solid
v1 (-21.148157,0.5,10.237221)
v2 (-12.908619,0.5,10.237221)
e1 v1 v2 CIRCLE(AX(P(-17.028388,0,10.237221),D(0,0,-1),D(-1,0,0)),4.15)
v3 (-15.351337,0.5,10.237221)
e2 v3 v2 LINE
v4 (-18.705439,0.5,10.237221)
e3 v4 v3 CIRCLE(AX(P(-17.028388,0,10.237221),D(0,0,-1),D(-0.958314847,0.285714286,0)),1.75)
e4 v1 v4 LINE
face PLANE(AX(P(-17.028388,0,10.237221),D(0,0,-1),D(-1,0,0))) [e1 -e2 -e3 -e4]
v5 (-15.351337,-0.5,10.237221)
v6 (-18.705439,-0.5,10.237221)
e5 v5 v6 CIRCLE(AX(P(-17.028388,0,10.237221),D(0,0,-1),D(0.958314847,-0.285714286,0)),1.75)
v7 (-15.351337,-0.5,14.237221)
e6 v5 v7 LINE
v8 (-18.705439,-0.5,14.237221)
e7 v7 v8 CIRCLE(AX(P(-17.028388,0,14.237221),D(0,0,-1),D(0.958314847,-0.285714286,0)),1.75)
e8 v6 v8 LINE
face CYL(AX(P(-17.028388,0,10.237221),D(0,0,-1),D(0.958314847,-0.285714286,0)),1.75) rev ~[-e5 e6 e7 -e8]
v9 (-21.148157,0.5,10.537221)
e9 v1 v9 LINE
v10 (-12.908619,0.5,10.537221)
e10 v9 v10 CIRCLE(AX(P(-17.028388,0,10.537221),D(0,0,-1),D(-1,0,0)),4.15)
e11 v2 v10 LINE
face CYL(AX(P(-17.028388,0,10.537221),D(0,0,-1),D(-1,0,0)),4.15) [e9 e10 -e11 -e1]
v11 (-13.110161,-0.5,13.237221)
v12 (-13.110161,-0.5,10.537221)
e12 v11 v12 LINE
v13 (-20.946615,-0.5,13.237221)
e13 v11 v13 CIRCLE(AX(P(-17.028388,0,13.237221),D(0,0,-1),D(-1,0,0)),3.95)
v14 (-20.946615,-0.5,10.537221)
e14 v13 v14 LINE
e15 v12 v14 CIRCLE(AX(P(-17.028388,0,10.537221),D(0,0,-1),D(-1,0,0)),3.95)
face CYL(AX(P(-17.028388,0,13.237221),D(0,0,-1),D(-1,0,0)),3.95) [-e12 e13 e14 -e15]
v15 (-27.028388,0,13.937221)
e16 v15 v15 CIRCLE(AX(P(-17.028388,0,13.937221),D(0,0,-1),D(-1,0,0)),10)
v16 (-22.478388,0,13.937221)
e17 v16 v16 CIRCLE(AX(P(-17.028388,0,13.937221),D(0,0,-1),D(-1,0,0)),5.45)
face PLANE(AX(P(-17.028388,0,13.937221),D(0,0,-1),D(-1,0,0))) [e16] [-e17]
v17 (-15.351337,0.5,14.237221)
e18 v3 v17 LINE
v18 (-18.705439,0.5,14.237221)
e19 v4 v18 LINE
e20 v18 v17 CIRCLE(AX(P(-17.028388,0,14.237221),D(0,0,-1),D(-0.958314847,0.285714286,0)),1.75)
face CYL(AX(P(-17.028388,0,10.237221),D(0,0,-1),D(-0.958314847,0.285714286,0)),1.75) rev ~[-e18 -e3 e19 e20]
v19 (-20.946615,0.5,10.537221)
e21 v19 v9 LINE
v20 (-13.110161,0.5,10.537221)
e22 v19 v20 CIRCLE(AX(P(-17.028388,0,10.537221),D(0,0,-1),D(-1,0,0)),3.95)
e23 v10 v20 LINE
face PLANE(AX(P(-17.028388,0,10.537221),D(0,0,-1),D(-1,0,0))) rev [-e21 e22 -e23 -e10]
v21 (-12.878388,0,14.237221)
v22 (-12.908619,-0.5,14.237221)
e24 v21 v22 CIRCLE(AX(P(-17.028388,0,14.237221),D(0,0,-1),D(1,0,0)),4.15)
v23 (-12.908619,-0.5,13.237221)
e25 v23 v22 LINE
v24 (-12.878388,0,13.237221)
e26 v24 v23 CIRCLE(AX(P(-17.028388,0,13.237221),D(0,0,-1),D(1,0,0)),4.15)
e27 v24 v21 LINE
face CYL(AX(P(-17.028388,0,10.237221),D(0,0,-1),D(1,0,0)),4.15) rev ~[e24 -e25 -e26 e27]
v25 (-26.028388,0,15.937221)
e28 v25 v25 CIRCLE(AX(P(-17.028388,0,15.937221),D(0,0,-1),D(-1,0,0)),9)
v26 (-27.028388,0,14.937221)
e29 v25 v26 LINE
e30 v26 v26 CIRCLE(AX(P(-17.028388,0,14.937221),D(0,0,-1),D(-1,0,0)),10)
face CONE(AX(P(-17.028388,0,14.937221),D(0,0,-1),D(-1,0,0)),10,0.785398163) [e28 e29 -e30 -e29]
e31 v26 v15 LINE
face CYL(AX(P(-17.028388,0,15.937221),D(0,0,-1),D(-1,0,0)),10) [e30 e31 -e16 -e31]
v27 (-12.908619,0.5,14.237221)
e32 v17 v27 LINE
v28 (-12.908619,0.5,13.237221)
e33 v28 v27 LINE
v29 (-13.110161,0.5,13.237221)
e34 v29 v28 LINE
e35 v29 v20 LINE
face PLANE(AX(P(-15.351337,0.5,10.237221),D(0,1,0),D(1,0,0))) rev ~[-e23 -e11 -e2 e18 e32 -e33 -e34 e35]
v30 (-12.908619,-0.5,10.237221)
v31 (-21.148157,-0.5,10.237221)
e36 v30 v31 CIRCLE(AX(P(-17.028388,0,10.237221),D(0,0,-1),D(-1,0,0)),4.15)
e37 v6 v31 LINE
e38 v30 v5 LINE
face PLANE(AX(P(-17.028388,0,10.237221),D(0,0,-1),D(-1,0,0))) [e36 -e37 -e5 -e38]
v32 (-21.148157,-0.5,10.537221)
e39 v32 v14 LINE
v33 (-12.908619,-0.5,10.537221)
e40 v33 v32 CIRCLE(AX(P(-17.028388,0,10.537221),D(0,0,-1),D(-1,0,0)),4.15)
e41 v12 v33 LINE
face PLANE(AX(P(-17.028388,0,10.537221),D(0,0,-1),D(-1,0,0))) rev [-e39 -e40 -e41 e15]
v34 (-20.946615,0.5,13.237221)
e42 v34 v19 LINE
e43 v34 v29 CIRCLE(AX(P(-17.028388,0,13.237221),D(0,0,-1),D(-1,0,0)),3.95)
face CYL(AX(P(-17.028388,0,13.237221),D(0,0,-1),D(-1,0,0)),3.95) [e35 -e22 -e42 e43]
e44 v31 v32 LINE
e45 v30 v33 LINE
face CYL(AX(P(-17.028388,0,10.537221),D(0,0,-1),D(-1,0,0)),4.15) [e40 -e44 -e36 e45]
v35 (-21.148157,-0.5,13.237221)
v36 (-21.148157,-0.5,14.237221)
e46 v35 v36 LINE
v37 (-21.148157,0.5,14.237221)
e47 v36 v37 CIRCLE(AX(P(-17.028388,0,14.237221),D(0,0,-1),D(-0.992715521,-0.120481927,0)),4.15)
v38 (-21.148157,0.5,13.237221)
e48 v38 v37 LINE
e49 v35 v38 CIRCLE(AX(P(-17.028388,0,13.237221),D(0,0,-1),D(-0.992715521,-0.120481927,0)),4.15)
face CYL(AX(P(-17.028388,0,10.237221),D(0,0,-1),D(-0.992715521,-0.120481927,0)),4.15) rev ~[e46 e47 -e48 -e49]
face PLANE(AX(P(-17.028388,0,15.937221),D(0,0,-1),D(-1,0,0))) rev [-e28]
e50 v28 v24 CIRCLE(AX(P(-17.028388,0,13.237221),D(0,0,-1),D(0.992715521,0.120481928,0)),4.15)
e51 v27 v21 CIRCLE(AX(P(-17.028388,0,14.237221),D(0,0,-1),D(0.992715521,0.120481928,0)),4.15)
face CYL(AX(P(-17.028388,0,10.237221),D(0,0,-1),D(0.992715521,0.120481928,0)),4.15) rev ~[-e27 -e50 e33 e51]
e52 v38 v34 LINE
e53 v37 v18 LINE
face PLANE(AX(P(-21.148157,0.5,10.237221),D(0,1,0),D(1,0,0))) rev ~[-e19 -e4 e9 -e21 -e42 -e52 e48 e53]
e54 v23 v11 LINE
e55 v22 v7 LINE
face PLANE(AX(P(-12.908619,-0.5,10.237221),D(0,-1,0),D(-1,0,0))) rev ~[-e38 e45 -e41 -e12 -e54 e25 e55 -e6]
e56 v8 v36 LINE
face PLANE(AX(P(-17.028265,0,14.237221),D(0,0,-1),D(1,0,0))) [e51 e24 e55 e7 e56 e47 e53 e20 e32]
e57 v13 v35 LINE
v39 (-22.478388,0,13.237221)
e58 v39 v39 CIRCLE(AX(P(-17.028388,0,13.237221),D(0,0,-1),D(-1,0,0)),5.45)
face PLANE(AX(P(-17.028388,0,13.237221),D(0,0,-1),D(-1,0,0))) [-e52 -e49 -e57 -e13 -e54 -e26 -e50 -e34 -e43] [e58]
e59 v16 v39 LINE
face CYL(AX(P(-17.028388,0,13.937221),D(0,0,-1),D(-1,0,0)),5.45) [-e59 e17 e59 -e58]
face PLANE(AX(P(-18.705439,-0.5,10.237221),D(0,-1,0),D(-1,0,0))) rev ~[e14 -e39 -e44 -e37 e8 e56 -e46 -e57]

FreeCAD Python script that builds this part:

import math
import FreeCAD as App
import Part
import Sketcher
from FreeCAD import Vector
Q = App.Units.Quantity


def edges_at(feature, points):
    """Names of the edges that pass closest to the given points."""
    edges = feature.Shape.Edges
    near = lambda p: min(range(len(edges)), key=lambda i: edges[i].distToShape(Part.Vertex(*p))[0])
    return sorted({f"Edge{near(p) + 1}" for p in points})

doc = App.newDocument("Part")
body = doc.addObject("PartDesign::Body", "Body")

sketch1 = body.newObject("Sketcher::SketchObject", "Sketch")
sketch1.AttachmentSupport = (doc.getObject("XZ_Plane"), [""])
sketch1.MapMode = "FlatFace"
sketch1.addGeometry(Part.LineSegment(Vector(-17.028388, 10.237221, 0), Vector(-17.028388, 15.937221, 0)), False)
sketch1.addGeometry(Part.LineSegment(Vector(-17.028388, 15.937221, 0), Vector(-27.028388, 15.937221, 0)), False)
sketch1.addGeometry(Part.LineSegment(Vector(-27.028388, 15.937221, 0), Vector(-27.028388, 13.937221, 0)), False)
sketch1.addGeometry(Part.LineSegment(Vector(-27.028388, 13.937221, 0), Vector(-22.478388, 13.937221, 0)), False)
sketch1.addGeometry(Part.LineSegment(Vector(-22.478388, 13.937221, 0), Vector(-22.478388, 13.237221, 0)), False)
sketch1.addGeometry(Part.LineSegment(Vector(-22.478388, 13.237221, 0), Vector(-20.978388, 13.237221, 0)), False)
sketch1.addGeometry(Part.LineSegment(Vector(-20.978388, 13.237221, 0), Vector(-20.978388, 10.537221, 0)), False)
sketch1.addGeometry(Part.LineSegment(Vector(-20.978388, 10.537221, 0), Vector(-21.178388, 10.537221, 0)), False)
sketch1.addGeometry(Part.LineSegment(Vector(-21.178388, 10.537221, 0), Vector(-21.178388, 10.237221, 0)), False)
sketch1.addGeometry(Part.LineSegment(Vector(-21.178388, 10.237221, 0), Vector(-17.028388, 10.237221, 0)), False)
sketch1.addGeometry(Part.LineSegment(Vector(-17.028388, 15.937221, 0), Vector(-17.028388, 10.237221, 0)), True)
sketch1.addConstraint(Sketcher.Constraint("Coincident", 0, 2, 1, 1))
sketch1.addConstraint(Sketcher.Constraint("Coincident", 1, 2, 2, 1))
sketch1.addConstraint(Sketcher.Constraint("Coincident", 2, 2, 3, 1))
sketch1.addConstraint(Sketcher.Constraint("Coincident", 3, 2, 4, 1))
sketch1.addConstraint(Sketcher.Constraint("Coincident", 4, 2, 5, 1))
sketch1.addConstraint(Sketcher.Constraint("Coincident", 5, 2, 6, 1))
sketch1.addConstraint(Sketcher.Constraint("Coincident", 6, 2, 7, 1))
sketch1.addConstraint(Sketcher.Constraint("Coincident", 7, 2, 8, 1))
sketch1.addConstraint(Sketcher.Constraint("Coincident", 8, 2, 9, 1))
sketch1.addConstraint(Sketcher.Constraint("Coincident", 9, 2, 0, 1))
sketch1.addConstraint(Sketcher.Constraint("Vertical", 0))
sketch1.addConstraint(Sketcher.Constraint("Horizontal", 1))
sketch1.addConstraint(Sketcher.Constraint("Vertical", 2))
sketch1.addConstraint(Sketcher.Constraint("Horizontal", 3))
sketch1.addConstraint(Sketcher.Constraint("Vertical", 4))
sketch1.addConstraint(Sketcher.Constraint("Horizontal", 5))
sketch1.addConstraint(Sketcher.Constraint("Vertical", 6))
sketch1.addConstraint(Sketcher.Constraint("Horizontal", 7))
sketch1.addConstraint(Sketcher.Constraint("Vertical", 8))
sketch1.addConstraint(Sketcher.Constraint("Horizontal", 9))
sketch1.addConstraint(Sketcher.Constraint("Vertical", 10))
sketch1.addConstraint(Sketcher.Constraint("Coincident", 10, 1, 0, 2))
sketch1.addConstraint(Sketcher.Constraint("Horizontal", 8, 2, 10, 2))
sketch1.addConstraint(Sketcher.Constraint("DistanceX", 1, 2, 1, 1, Q("10 mm")))
sketch1.addConstraint(Sketcher.Constraint("DistanceY", 2, 2, 2, 1, Q("2 mm")))
sketch1.addConstraint(Sketcher.Constraint("DistanceX", 5, 1, 5, 2, Q("1.5 mm")))
sketch1.addConstraint(Sketcher.Constraint("DistanceX", 7, 2, 7, 1, Q("0.2 mm")))
sketch1.addConstraint(Sketcher.Constraint("DistanceY", 0, 1, 0, 2, Q("5.7 mm")))
sketch1.addConstraint(Sketcher.Constraint("DistanceY", 4, 2, 4, 1, Q("0.7 mm")))
sketch1.addConstraint(Sketcher.Constraint("DistanceY", 6, 2, 6, 1, Q("2.7 mm")))
sketch1.addConstraint(Sketcher.Constraint("DistanceX", 3, 1, 3, 2, Q("4.55 mm")))
sketch1.addConstraint(Sketcher.Constraint("DistanceY", -1, 1, 0, 2, Q("15.937221 mm")))
sketch1.addConstraint(Sketcher.Constraint("DistanceX", 0, 2, -1, 1, Q("17.028388 mm")))
revolution = body.newObject("PartDesign::Revolution", "Revolution")
revolution.Profile = sketch1
revolution.ReferenceAxis = (sketch1, ["Axis0"])
revolution.Angle = 360

sketch2 = body.newObject("Sketcher::SketchObject", "Sketch001")
sketch2.AttachmentSupport = (doc.getObject("XY_Plane"), [""])
sketch2.MapMode = "FlatFace"
sketch2.AttachmentOffset = App.Placement(Vector(0, 0, 10.237221), App.Rotation())
sketch2.addGeometry(Part.LineSegment(Vector(-21.148157, 0.5, 0), Vector(-18.705439, 0.5, 0)), False)
sketch2.addGeometry(Part.ArcOfCircle(Part.Circle(Vector(-17.028388, 0, 0), Vector(0, 0, 1), 1.75), math.radians(16.60155), math.radians(163.39845)), False)
sketch2.addGeometry(Part.LineSegment(Vector(-15.351337, 0.5, 0), Vector(-12.908619, 0.5, 0)), False)
sketch2.addGeometry(Part.ArcOfCircle(Part.Circle(Vector(-17.028388, 0, 0), Vector(0, 0, 1), 4.15), math.radians(0), math.radians(6.919917)), False)
sketch2.addGeometry(Part.ArcOfCircle(Part.Circle(Vector(-17.028388, 0, 0), Vector(0, 0, 1), 4.15), math.radians(-6.919917), math.radians(0)), False)
sketch2.addGeometry(Part.LineSegment(Vector(-12.908619, -0.5, 0), Vector(-15.351337, -0.5, 0)), False)
sketch2.addGeometry(Part.ArcOfCircle(Part.Circle(Vector(-17.028388, 0, 0), Vector(0, 0, 1), 1.75), math.radians(-163.39845), math.radians(-16.60155)), False)
sketch2.addGeometry(Part.LineSegment(Vector(-18.705439, -0.5, 0), Vector(-21.148157, -0.5, 0)), False)
sketch2.addGeometry(Part.ArcOfCircle(Part.Circle(Vector(-17.028388, 0, 0), Vector(0, 0, 1), 4.15), math.radians(173.080083), math.radians(186.919917)), False)
sketch2.addConstraint(Sketcher.Constraint("Coincident", 0, 2, 1, 2))
sketch2.addConstraint(Sketcher.Constraint("Coincident", 1, 1, 2, 1))
sketch2.addConstraint(Sketcher.Constraint("Coincident", 2, 2, 3, 2))
sketch2.addConstraint(Sketcher.Constraint("Tangent", 3, 1, 4, 2))
sketch2.addConstraint(Sketcher.Constraint("Coincident", 4, 1, 5, 1))
sketch2.addConstraint(Sketcher.Constraint("Coincident", 5, 2, 6, 2))
sketch2.addConstraint(Sketcher.Constraint("Coincident", 6, 1, 7, 1))
sketch2.addConstraint(Sketcher.Constraint("Coincident", 7, 2, 8, 2))
sketch2.addConstraint(Sketcher.Constraint("Coincident", 8, 1, 0, 1))
sketch2.addConstraint(Sketcher.Constraint("Horizontal", 0))
sketch2.addConstraint(Sketcher.Constraint("Horizontal", 2))
sketch2.addConstraint(Sketcher.Constraint("Horizontal", 5))
sketch2.addConstraint(Sketcher.Constraint("Horizontal", 7))
sketch2.addConstraint(Sketcher.Constraint("Coincident", 3, 3, 1, 3))
sketch2.addConstraint(Sketcher.Constraint("Coincident", 6, 3, 1, 3))
sketch2.addConstraint(Sketcher.Constraint("Coincident", 8, 3, 1, 3))
sketch2.addConstraint(Sketcher.Constraint("Equal", 3, 4))
sketch2.addConstraint(Sketcher.Constraint("Equal", 1, 6))
sketch2.addConstraint(Sketcher.Constraint("Equal", 4, 8))
sketch2.addConstraint(Sketcher.Constraint("Symmetric", 2, 2, 4, 1, -1))
sketch2.addConstraint(Sketcher.Constraint("PointOnObject", 3, 1, -1))
sketch2.addConstraint(Sketcher.Constraint("Horizontal", 0, 2, 1, 1))
sketch2.addConstraint(Sketcher.Constraint("Horizontal", 5, 2, 6, 1))
sketch2.addConstraint(Sketcher.Constraint("Radius", 1, Q("1.75 mm")))
sketch2.addConstraint(Sketcher.Constraint("Radius", 3, Q("4.15 mm")))
sketch2.addConstraint(Sketcher.Constraint("DistanceY", 4, 1, 2, 2, Q("1 mm")))
sketch2.addConstraint(Sketcher.Constraint("DistanceX", 0, 2, -1, 1, Q("18.705439 mm")))
pocket1 = body.newObject("PartDesign::Pocket", "Pocket")
pocket1.Profile = sketch2
pocket1.Length = 4
pocket1.Reversed = True
doc.recompute()

chamfer = body.newObject("PartDesign::Chamfer", "Chamfer")
chamfer.Base = (pocket1, edges_at(pocket1, [(-7.028, 0, 15.937)]))
chamfer.Size = 1

doc.recompute()
